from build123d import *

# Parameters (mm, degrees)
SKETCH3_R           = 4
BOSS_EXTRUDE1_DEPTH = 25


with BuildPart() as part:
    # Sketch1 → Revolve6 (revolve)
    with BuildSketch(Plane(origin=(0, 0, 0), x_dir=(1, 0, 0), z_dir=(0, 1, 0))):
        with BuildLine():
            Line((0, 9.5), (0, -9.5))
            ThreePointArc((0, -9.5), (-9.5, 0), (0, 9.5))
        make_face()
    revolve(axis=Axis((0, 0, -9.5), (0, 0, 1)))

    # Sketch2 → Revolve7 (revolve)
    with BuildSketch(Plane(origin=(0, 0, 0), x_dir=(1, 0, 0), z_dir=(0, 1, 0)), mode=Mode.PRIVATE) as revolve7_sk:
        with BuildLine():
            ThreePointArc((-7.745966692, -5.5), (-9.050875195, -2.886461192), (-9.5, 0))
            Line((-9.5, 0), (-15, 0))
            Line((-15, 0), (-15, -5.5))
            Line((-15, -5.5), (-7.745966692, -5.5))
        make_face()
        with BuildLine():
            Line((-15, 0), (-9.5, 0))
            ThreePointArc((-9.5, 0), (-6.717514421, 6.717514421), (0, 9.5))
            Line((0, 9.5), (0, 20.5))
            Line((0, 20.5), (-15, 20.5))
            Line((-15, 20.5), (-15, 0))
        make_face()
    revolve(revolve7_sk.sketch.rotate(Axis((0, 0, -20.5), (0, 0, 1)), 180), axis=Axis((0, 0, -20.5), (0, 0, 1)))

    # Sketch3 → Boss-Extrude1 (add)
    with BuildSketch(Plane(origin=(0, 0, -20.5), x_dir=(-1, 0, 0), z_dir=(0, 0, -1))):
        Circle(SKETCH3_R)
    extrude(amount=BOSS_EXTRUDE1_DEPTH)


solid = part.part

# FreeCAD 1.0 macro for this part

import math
import FreeCAD as App
import Part
import Sketcher
Q = App.Units.Quantity

doc = App.newDocument("Part")
body = doc.addObject("PartDesign::Body", "Body")

# Sketch on XZ plane
sketch1 = body.newObject("Sketcher::SketchObject", "Sketch")
sketch1.AttachmentSupport = (doc.getObject("XZ_Plane"), [""])
sketch1.MapMode = "FlatFace"
sketch1.addGeometry([
    Part.LineSegment(App.Vector(0, 10, 0), App.Vector(0, -10, 0)),
    Part.ArcOfCircle(Part.Circle(App.Vector(0, 0, 0), App.Vector(0, 0, 1), 10), math.radians(90), math.radians(270)),
], False)
sketch1.addConstraint([
    Sketcher.Constraint("Coincident", 0, 1, 1, 1),
    Sketcher.Constraint("Coincident", 1, 2, 0, 2),
    Sketcher.Constraint("Vertical", 0),
    Sketcher.Constraint("Coincident", 1, 3, -1, 1),
    Sketcher.Constraint("PointOnObject", 0, 1, -2),
    Sketcher.Constraint("Radius", 1, Q("9.5 mm")),
])
revolution = body.newObject("PartDesign::Revolution", "Revolution")
revolution.Profile = sketch1
revolution.ReferenceAxis = (sketch1, ["V_Axis"])
revolution.Angle = 360

# Sketch on XZ plane
sketch2 = body.newObject("Sketcher::SketchObject", "Sketch001")
sketch2.AttachmentSupport = (doc.getObject("XZ_Plane"), [""])
sketch2.MapMode = "FlatFace"
sketch2.addGeometry([
    Part.ArcOfCircle(Part.Circle(App.Vector(0, 0, 0), App.Vector(0, 0, 1), 9), math.radians(145), math.radians(180)),  # 0
    Part.ArcOfCircle(Part.Circle(App.Vector(0, 0, 0), App.Vector(0, 0, 1), 10), math.radians(-180), math.radians(-90)),  # 1
    Part.LineSegment(App.Vector(0, -10, 0), App.Vector(0, -20, 0)),  # 2
    Part.LineSegment(App.Vector(0, -20, 0), App.Vector(-15, -20, 0)),  # 3
    Part.LineSegment(App.Vector(-15, -20, 0), App.Vector(-15, 6, 0)),  # 4
    Part.LineSegment(App.Vector(-15, 6, 0), App.Vector(-8, 6, 0)),  # 5
], False)
sketch2.addConstraint([
    Sketcher.Constraint("Tangent", 0, 2, 1, 1),
    Sketcher.Constraint("Coincident", 1, 2, 2, 1),
    Sketcher.Constraint("Coincident", 2, 2, 3, 1),
    Sketcher.Constraint("Coincident", 3, 2, 4, 1),
    Sketcher.Constraint("Coincident", 4, 2, 5, 1),
    Sketcher.Constraint("Coincident", 5, 2, 0, 1),
    Sketcher.Constraint("Vertical", 2),
    Sketcher.Constraint("Horizontal", 3),
    Sketcher.Constraint("Vertical", 4),
    Sketcher.Constraint("Horizontal", 5),
    Sketcher.Constraint("Coincident", 0, 3, -1, 1),
    Sketcher.Constraint("Equal", 0, 1),
    Sketcher.Constraint("PointOnObject", 0, 2, -1),
    Sketcher.Constraint("PointOnObject", 1, 2, -2),
    Sketcher.Constraint("Radius", 0, Q("9.5 mm")),
    Sketcher.Constraint("DistanceX", 3, 2, 3, 1, Q("15 mm")),
    Sketcher.Constraint("DistanceY", 2, 2, 2, 1, Q("11 mm")),
    Sketcher.Constraint("DistanceY", 4, 1, 4, 2, Q("26 mm")),
])
revolution2 = body.newObject("PartDesign::Revolution", "Revolution001")
revolution2.Profile = sketch2
revolution2.ReferenceAxis = (sketch2, ["V_Axis"])
revolution2.Angle = 360

# Sketch on XY plane
sketch3 = body.newObject("Sketcher::SketchObject", "Sketch002")
sketch3.AttachmentSupport = (doc.getObject("XY_Plane"), [""])
sketch3.MapMode = "FlatFace"
sketch3.AttachmentOffset = App.Placement(App.Vector(0, 0, -20.5), App.Rotation())
sketch3.addGeometry(Part.Circle(App.Vector(0, 0, 0), App.Vector(0, 0, 1), 4), False)
sketch3.addConstraint([
    Sketcher.Constraint("Coincident", 0, 3, -1, 1),
    Sketcher.Constraint("Diameter", 0, Q("8 mm")),
])
pad1 = body.newObject("PartDesign::Pad", "Pad")
pad1.Profile = sketch3
pad1.Length = 25
pad1.Reversed = True

doc.recompute()
